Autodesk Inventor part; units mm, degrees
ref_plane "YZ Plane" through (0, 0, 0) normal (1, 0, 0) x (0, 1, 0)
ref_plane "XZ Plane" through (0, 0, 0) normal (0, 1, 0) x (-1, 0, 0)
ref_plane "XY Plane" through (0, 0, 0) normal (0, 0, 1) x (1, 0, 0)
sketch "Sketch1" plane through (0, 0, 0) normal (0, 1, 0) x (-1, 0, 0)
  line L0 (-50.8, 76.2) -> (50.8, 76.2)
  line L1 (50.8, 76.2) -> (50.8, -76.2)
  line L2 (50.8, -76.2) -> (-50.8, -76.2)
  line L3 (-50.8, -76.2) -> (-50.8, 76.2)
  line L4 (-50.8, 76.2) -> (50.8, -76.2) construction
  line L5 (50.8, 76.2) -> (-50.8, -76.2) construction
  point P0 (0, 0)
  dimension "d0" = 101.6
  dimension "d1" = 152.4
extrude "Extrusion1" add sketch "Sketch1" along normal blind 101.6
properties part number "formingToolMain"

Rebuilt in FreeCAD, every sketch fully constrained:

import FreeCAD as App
import Part
import Sketcher

V = App.Vector
Q = App.Units.Quantity


def add_polygon(sketch, points):
    """Adds a closed chain of lines whose ends are joined by coincident constraints."""
    first, n = sketch.GeometryCount, len(points)
    for a, b in zip(points, points[1:] + points[:1]):
        sketch.addGeometry(Part.LineSegment(App.Vector(*a, 0), App.Vector(*b, 0)), False)
    for i in range(n):
        sketch.addConstraint(Sketcher.Constraint("Coincident", first + i, 2, first + (i + 1) % n, 1))

doc = App.newDocument("Part")
body = doc.addObject("PartDesign::Body", "Body")

# Sketch on XZ plane
sketch1 = body.newObject("Sketcher::SketchObject", "Sketch")
sketch1.AttachmentSupport = (doc.getObject("XZ_Plane"), [""])
sketch1.MapMode = "FlatFace"
add_polygon(sketch1, [(-51, 76), (51, 76), (51, -76), (-51, -76)])  # lines 0-3
sketch1.addConstraint(Sketcher.Constraint("Horizontal", 0))
sketch1.addConstraint(Sketcher.Constraint("Vertical", 1))
sketch1.addConstraint(Sketcher.Constraint("Horizontal", 2))
sketch1.addConstraint(Sketcher.Constraint("Vertical", 3))
sketch1.addConstraint(Sketcher.Constraint("Symmetric", 0, 2, 2, 2, -1, 1))
sketch1.addConstraint(Sketcher.Constraint("DistanceX", 0, 1, 0, 2, Q("4 in")))
sketch1.addConstraint(Sketcher.Constraint("DistanceY", 1, 2, 1, 1, Q("6 in")))
pad1 = body.newObject("PartDesign::Pad", "Pad")
pad1.Profile = sketch1
pad1.Length = Q("4 in")
pad1.Reversed = True

doc.recompute()
